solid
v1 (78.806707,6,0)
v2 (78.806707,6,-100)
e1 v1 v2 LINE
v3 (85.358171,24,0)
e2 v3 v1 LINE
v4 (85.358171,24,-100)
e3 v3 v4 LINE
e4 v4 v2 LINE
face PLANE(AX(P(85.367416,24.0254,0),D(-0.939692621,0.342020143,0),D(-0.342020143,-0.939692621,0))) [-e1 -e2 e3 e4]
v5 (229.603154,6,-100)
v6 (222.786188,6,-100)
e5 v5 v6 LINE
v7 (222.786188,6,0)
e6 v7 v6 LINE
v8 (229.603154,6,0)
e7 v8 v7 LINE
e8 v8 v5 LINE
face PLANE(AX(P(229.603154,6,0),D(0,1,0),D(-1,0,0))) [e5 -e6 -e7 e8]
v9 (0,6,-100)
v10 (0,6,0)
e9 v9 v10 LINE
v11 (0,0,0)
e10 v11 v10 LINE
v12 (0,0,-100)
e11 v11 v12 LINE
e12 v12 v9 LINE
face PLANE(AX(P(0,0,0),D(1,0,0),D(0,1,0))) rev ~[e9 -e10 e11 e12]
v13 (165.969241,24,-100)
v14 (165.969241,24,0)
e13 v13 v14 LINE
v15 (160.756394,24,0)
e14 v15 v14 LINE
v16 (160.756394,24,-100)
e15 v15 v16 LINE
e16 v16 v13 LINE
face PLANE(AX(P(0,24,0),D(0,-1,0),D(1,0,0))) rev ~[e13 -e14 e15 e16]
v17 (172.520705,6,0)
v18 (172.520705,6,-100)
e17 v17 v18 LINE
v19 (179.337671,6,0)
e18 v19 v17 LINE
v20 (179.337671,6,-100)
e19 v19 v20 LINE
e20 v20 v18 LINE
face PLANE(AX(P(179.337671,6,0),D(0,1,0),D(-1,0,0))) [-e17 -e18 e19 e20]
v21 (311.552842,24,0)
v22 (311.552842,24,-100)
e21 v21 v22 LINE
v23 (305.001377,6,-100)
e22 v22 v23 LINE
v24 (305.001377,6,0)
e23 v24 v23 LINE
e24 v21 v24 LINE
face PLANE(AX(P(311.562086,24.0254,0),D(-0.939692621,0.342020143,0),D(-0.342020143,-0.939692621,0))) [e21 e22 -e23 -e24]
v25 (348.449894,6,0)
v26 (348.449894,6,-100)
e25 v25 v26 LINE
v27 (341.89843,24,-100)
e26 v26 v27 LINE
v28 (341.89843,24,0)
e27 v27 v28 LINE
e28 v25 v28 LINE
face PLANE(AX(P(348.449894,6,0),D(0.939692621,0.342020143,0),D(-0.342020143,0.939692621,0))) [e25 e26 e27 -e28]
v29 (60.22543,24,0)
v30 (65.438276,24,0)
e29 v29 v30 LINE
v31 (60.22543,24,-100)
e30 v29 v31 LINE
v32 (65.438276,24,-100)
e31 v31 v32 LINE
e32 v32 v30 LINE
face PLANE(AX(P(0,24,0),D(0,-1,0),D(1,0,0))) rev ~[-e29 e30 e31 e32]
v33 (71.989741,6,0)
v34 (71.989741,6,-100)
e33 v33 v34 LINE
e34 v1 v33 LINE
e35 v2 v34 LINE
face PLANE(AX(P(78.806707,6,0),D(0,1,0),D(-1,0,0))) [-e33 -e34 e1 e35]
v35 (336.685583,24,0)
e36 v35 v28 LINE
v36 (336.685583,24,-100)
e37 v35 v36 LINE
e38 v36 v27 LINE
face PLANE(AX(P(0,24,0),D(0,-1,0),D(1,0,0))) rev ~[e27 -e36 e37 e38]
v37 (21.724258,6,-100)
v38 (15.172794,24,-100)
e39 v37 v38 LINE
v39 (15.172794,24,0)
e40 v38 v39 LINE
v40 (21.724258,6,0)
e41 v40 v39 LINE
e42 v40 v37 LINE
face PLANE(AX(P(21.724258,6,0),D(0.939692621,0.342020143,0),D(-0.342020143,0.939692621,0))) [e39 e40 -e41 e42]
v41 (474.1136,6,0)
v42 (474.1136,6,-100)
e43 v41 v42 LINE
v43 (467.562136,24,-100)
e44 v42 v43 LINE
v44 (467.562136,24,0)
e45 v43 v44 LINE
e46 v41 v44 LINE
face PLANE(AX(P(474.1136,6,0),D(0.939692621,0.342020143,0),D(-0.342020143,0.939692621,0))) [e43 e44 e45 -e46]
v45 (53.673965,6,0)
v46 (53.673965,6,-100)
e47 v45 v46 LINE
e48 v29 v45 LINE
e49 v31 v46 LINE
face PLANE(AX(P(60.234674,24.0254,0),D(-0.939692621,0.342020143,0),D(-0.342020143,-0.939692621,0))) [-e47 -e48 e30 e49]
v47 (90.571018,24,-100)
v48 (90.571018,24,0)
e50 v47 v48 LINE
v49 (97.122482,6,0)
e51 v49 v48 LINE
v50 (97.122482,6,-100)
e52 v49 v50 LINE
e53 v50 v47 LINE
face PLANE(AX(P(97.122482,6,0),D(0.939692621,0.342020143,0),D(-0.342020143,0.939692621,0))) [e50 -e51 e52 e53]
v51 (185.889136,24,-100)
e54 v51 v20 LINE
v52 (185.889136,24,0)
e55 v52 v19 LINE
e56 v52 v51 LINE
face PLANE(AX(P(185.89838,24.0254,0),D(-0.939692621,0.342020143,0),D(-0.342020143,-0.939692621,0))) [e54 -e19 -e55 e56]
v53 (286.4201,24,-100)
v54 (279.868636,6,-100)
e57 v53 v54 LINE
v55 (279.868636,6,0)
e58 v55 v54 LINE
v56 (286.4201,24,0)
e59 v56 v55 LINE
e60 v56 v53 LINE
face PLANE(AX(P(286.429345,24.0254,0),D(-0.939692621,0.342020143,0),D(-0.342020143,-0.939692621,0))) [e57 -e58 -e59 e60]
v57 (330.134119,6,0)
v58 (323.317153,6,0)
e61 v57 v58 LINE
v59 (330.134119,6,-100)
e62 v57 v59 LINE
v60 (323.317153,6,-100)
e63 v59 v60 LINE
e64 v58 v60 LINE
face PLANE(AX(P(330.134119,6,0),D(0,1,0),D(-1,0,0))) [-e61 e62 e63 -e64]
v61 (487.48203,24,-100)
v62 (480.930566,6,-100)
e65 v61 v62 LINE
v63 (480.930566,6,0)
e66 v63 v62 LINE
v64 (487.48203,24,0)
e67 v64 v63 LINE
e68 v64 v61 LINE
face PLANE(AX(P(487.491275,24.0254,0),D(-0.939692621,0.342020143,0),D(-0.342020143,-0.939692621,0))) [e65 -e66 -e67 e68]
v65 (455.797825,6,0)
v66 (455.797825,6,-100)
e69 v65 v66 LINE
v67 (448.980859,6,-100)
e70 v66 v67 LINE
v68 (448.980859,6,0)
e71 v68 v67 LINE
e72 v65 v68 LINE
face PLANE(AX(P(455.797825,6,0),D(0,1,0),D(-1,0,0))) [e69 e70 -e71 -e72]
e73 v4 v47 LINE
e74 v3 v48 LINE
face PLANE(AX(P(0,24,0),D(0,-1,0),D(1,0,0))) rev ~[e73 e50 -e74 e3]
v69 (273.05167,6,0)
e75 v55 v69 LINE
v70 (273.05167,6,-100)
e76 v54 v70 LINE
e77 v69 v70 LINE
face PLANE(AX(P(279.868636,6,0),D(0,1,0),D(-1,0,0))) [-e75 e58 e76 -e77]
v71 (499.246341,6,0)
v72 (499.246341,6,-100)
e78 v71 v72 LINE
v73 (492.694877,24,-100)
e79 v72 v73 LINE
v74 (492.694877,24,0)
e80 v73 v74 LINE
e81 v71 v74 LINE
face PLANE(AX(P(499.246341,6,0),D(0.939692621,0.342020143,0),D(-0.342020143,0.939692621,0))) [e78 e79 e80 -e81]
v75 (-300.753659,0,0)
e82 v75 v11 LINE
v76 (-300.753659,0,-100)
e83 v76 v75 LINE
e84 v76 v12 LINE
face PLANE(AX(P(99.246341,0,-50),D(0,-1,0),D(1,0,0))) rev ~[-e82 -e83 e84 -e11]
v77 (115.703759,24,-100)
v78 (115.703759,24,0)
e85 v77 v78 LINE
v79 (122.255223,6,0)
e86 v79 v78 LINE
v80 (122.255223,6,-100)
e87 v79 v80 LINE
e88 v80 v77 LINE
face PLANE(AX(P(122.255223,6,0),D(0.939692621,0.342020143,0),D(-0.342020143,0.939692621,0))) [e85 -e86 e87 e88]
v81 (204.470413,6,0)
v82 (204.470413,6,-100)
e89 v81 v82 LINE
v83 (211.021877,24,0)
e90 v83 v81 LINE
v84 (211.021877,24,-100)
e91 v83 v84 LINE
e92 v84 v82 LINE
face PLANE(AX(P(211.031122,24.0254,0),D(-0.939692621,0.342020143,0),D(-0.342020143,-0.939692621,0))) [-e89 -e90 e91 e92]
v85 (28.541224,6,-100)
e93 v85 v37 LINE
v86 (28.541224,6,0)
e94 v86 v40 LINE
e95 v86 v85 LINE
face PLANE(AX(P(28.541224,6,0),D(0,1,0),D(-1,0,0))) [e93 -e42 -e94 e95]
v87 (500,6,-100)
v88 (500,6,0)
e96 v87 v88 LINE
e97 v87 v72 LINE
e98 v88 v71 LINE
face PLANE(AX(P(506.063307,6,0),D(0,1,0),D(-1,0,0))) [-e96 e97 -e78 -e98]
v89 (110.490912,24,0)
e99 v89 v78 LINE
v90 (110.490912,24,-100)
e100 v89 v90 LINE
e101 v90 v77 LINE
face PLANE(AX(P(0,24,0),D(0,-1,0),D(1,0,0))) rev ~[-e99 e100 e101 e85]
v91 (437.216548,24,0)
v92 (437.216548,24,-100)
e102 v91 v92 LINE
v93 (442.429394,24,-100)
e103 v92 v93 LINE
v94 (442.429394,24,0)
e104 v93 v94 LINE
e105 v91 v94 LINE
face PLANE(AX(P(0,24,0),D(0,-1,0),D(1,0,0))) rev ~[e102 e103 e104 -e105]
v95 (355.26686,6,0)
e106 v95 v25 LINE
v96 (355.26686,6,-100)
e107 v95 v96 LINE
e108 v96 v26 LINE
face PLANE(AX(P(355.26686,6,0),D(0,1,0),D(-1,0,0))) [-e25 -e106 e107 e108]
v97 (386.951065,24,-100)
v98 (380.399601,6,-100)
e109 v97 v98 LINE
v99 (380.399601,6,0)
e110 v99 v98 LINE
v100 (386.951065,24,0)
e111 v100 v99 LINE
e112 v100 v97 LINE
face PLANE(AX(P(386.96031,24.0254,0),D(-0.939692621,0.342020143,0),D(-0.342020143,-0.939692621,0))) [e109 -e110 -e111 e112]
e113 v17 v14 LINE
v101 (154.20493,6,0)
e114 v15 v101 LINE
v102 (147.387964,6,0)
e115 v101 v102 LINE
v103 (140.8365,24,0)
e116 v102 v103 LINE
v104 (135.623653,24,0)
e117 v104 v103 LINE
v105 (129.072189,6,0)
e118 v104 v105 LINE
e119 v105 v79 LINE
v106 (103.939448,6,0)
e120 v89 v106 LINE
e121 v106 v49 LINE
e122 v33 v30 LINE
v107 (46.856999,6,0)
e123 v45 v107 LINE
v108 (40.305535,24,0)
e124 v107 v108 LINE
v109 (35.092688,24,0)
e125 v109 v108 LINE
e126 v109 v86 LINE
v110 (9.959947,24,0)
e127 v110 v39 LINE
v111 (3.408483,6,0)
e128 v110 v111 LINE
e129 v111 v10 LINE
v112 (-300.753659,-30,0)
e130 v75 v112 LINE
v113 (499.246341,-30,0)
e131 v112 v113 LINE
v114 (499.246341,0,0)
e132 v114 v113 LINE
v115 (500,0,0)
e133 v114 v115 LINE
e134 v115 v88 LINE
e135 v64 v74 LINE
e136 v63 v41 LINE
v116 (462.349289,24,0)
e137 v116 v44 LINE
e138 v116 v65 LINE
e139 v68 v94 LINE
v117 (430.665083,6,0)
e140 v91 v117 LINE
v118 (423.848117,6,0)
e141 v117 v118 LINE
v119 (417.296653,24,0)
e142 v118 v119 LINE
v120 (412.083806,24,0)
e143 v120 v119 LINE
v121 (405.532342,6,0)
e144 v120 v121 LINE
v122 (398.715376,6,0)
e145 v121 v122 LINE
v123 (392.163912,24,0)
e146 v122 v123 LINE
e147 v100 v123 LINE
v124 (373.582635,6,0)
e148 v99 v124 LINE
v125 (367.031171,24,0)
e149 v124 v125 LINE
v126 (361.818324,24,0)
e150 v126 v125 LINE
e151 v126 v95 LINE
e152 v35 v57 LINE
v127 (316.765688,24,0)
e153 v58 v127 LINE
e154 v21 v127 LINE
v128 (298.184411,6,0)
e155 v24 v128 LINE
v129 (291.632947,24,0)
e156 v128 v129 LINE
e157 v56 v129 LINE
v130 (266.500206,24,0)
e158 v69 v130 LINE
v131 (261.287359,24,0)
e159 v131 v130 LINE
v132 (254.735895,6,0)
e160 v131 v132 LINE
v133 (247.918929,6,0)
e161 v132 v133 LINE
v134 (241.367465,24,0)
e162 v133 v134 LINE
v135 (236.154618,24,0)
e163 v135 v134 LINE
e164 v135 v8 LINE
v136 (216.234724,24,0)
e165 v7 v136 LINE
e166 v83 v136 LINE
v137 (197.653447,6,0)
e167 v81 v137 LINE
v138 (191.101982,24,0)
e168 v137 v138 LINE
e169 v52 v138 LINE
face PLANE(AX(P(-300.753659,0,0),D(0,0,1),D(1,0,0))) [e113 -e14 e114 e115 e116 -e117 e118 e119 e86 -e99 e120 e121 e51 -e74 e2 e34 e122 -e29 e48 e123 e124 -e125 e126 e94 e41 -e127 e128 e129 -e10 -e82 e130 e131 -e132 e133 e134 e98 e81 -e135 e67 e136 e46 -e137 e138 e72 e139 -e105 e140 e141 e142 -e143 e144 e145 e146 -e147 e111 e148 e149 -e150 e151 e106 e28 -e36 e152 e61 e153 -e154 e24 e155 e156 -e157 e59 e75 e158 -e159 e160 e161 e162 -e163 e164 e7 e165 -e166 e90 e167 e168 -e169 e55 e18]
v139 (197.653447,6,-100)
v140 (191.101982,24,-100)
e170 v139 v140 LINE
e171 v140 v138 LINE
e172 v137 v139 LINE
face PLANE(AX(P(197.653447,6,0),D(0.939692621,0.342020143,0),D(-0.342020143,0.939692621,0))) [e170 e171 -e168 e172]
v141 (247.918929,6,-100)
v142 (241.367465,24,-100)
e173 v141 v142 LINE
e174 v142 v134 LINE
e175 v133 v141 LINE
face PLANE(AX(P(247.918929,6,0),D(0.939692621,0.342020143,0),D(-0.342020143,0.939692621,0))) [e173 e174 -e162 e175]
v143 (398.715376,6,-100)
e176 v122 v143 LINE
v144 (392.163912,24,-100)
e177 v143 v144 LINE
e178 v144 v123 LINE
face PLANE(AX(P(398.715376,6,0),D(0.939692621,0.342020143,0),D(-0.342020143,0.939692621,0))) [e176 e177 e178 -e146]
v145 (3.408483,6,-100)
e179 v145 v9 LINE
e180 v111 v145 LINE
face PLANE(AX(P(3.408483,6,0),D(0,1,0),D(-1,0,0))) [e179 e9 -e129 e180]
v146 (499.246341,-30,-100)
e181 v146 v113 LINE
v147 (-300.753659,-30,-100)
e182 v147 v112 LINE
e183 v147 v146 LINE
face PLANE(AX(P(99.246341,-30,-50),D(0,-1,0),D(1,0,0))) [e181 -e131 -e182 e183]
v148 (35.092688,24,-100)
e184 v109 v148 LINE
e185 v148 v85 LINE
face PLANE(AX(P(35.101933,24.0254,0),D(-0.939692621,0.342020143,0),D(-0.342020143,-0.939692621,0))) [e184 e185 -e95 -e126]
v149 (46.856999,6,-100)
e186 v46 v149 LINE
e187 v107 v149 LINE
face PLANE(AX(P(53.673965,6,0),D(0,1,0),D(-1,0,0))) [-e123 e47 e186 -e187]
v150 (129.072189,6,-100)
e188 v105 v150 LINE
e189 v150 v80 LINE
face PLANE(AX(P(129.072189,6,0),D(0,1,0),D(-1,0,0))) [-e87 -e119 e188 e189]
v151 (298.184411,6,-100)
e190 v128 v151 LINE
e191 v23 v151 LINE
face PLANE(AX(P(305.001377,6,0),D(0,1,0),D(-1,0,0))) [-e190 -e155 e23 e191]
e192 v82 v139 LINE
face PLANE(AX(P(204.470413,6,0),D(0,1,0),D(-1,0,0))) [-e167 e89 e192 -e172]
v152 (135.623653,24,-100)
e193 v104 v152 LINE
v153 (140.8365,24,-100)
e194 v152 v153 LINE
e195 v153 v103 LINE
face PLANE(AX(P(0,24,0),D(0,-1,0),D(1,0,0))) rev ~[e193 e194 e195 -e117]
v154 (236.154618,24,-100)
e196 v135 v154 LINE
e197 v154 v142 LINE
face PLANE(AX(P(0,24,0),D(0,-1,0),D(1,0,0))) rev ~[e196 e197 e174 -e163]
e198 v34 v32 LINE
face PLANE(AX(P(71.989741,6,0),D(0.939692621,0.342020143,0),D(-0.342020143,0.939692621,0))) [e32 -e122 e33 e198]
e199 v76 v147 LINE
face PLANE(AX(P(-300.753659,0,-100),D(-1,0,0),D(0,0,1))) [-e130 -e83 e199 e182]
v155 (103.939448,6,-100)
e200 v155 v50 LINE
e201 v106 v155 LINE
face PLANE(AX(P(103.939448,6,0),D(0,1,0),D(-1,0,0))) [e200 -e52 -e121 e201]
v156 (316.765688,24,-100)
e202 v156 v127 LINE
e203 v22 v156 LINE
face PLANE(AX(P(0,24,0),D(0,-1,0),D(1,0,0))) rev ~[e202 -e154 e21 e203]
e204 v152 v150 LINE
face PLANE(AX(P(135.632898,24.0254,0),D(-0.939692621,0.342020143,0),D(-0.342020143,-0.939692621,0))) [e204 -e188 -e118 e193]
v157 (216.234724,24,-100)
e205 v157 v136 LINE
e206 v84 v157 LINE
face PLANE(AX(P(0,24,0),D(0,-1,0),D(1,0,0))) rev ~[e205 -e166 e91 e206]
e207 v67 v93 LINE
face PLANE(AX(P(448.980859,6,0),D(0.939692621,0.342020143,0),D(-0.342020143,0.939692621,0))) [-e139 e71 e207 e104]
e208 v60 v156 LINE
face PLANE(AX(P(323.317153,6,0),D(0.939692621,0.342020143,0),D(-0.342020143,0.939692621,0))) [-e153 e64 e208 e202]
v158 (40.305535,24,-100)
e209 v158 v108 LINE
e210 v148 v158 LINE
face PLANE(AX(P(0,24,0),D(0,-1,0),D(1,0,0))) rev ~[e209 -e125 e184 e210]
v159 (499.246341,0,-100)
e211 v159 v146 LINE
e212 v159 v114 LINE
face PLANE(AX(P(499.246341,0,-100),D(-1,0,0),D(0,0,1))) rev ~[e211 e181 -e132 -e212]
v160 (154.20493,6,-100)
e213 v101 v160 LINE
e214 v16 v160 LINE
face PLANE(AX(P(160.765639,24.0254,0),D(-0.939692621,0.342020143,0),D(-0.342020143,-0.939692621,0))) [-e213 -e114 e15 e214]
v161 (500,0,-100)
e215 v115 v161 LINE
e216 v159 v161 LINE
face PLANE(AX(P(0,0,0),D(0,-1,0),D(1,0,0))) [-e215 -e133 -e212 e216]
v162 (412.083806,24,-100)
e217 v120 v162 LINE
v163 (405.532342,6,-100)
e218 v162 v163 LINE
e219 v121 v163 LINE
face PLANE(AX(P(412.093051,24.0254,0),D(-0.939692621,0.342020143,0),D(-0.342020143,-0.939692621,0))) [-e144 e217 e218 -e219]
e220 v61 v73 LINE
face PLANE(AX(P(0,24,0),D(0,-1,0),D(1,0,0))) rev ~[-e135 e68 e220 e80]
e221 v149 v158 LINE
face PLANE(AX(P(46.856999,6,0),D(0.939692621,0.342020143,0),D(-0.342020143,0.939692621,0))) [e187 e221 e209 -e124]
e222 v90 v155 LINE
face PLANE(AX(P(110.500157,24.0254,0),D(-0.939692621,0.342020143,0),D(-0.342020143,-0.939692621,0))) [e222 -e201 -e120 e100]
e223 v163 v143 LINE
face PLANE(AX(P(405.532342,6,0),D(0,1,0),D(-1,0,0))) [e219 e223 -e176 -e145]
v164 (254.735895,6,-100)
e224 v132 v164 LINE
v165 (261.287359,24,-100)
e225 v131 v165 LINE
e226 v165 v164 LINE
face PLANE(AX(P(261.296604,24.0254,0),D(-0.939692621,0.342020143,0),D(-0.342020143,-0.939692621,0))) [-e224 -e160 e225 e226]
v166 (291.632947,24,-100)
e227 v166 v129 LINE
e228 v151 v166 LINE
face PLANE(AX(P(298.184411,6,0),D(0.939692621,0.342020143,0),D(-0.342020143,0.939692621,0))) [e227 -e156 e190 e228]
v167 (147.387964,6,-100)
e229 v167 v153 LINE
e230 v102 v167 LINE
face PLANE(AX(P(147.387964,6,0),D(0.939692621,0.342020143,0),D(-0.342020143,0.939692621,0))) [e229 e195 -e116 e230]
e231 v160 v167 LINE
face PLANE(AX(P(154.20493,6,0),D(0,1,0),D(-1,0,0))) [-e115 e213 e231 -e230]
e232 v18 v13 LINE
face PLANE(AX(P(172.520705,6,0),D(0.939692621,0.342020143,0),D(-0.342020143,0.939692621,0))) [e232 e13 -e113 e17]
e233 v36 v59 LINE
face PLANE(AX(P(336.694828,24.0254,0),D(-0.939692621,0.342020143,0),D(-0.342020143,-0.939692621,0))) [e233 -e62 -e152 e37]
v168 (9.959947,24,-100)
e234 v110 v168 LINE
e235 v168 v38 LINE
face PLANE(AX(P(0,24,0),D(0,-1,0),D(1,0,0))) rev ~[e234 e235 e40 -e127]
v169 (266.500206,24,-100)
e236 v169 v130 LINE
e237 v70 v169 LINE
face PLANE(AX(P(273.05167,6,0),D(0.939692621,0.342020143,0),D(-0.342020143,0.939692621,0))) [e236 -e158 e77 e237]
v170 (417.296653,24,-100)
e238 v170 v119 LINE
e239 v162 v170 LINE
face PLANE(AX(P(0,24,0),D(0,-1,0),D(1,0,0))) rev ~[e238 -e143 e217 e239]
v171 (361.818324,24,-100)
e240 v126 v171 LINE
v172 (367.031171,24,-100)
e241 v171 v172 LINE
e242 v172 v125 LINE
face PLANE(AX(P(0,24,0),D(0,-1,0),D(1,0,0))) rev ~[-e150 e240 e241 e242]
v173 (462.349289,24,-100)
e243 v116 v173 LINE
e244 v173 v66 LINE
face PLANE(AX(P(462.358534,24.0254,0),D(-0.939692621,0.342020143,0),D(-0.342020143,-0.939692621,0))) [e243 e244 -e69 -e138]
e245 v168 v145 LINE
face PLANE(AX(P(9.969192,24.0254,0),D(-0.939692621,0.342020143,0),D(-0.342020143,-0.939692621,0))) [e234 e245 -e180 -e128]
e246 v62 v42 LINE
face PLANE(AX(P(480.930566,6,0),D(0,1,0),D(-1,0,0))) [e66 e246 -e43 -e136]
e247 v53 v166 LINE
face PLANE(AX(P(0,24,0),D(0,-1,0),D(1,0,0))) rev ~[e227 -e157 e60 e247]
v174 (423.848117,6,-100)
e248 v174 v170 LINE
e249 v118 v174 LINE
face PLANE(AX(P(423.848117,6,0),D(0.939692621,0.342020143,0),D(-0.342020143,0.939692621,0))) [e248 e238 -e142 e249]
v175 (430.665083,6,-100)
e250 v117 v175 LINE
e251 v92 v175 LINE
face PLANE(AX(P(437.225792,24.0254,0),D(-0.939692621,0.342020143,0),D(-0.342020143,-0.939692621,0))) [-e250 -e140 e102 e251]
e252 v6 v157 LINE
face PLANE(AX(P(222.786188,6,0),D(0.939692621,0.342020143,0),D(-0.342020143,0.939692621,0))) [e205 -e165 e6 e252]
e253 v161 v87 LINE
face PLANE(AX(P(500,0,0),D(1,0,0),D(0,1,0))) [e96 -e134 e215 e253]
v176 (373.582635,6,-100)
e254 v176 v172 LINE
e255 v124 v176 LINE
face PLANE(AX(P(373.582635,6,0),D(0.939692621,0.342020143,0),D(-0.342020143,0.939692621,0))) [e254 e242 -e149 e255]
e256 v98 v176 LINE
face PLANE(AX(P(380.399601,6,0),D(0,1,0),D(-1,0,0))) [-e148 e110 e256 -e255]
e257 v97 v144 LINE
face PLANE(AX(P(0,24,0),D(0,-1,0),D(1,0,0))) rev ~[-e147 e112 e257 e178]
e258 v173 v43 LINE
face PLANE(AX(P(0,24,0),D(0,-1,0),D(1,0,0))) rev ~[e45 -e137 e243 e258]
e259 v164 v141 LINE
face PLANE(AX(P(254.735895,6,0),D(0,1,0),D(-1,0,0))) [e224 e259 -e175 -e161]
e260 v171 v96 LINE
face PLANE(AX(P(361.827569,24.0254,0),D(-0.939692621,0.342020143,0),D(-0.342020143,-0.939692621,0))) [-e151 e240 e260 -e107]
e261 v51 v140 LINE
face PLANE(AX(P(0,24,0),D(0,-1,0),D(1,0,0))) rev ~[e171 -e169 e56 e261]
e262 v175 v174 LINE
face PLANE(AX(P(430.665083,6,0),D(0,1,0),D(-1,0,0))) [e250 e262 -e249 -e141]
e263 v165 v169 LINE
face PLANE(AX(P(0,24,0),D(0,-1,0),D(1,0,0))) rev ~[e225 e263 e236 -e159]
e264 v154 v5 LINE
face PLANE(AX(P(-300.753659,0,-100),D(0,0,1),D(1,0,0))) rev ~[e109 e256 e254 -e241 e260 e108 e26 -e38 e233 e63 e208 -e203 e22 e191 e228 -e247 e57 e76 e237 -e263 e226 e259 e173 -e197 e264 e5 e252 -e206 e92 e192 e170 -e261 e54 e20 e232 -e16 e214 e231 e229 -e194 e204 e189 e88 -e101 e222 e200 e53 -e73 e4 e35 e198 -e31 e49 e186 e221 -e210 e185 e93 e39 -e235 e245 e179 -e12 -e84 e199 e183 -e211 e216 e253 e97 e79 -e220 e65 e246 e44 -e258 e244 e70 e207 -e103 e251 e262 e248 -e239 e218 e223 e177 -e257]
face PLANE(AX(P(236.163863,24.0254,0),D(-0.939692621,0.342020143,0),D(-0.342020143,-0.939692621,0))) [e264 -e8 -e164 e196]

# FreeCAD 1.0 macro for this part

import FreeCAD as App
import Part
import Sketcher
from FreeCAD import Vector
Q = App.Units.Quantity


def add_polygon(sketch, points):
    """Adds a closed chain of lines whose ends are joined by coincident constraints."""
    first, n = sketch.GeometryCount, len(points)
    for a, b in zip(points, points[1:] + points[:1]):
        sketch.addGeometry(Part.LineSegment(App.Vector(*a, 0), App.Vector(*b, 0)), False)
    for i in range(n):
        sketch.addConstraint(Sketcher.Constraint("Coincident", first + i, 2, first + (i + 1) % n, 1))

doc = App.newDocument("Part")
body = doc.addObject("PartDesign::Body", "Body")

# Sketch on XY plane
sketch1 = body.newObject("Sketcher::SketchObject", "Sketch")
sketch1.AttachmentSupport = (doc.getObject("XY_Plane"), [""])
sketch1.MapMode = "FlatFace"
add_polygon(sketch1, [(0, 24), (0, 0), (500, 0), (500, 24)])  # lines 0-3
sketch1.addConstraint([
    Sketcher.Constraint("Vertical", 0),
    Sketcher.Constraint("Horizontal", 1),
    Sketcher.Constraint("Vertical", 2),
    Sketcher.Constraint("Horizontal", 3),
    Sketcher.Constraint("Coincident", 0, 2, -1, 1),
    Sketcher.Constraint("DistanceX", 1, 1, 1, 2, 500.0),
    Sketcher.Constraint("DistanceY", 0, 2, 0, 1, 24.0),
])
pad1 = body.newObject("PartDesign::Pad", "Pad")
pad1.Profile = sketch1
pad1.Length = 100
pad1.Reversed = True

# Sketch on XY plane
sketch2 = body.newObject("Sketcher::SketchObject", "Sketch001")
sketch2.AttachmentSupport = (doc.getObject("XY_Plane"), [""])
sketch2.MapMode = "FlatFace"
add_polygon(sketch2, [(-3, 6), (3, 6), (10, 24), (-10, 24)])  # lines 0-3
sketch2.addConstraint([
    Sketcher.Constraint("Horizontal", 0),
    Sketcher.Constraint("Horizontal", 2),
    Sketcher.Constraint("Equal", 1, 3),
    Sketcher.Constraint("Angle", 1, Q("70 deg")),
    Sketcher.Constraint("DistanceY", -1, 1, 0, 2, 6.0),
    Sketcher.Constraint("DistanceY", -1, 1, 1, 2, 24.0254),
    Sketcher.Constraint("DistanceX", 0, 1, 0, 2, 6.816966),
    Sketcher.Constraint("DistanceX", -1, 1, 0, 2, 3.408483),
])
pocket1 = body.newObject("PartDesign::Pocket", "Pocket")
pocket1.Profile = sketch2
pocket1.Type = "ThroughAll"
doc.recompute()

linearpattern = body.newObject("PartDesign::LinearPattern", "LinearPattern")
linearpattern.Originals = [pocket1]
linearpattern.Direction = (doc.getObject("X_Axis"), [""])
linearpattern.Mode = "offset"
linearpattern.Offset = 25.132741
linearpattern.Occurrences = 21
body.Tip = linearpattern

# Sketch on XZ plane
sketch3 = body.newObject("Sketcher::SketchObject", "Sketch002")
sketch3.AttachmentSupport = (doc.getObject("XZ_Plane"), [""])
sketch3.MapMode = "FlatFace"
add_polygon(sketch3, [(-301, 0), (-301, -100), (499, -100), (499, 0)])  # lines 0-3
sketch3.addConstraint([
    Sketcher.Constraint("Vertical", 0),
    Sketcher.Constraint("Horizontal", 1),
    Sketcher.Constraint("Vertical", 2),
    Sketcher.Constraint("Horizontal", 3),
    Sketcher.Constraint("PointOnObject", 2, 2, -1),
    Sketcher.Constraint("DistanceX", 1, 1, 1, 2, 800.0),
    Sketcher.Constraint("DistanceY", 0, 2, 0, 1, 100.0),
    Sketcher.Constraint("DistanceX", 0, 2, -1, 1, 300.753659),
])
pad2 = body.newObject("PartDesign::Pad", "Pad001")
pad2.Profile = sketch3
pad2.Length = 30

doc.recompute()
